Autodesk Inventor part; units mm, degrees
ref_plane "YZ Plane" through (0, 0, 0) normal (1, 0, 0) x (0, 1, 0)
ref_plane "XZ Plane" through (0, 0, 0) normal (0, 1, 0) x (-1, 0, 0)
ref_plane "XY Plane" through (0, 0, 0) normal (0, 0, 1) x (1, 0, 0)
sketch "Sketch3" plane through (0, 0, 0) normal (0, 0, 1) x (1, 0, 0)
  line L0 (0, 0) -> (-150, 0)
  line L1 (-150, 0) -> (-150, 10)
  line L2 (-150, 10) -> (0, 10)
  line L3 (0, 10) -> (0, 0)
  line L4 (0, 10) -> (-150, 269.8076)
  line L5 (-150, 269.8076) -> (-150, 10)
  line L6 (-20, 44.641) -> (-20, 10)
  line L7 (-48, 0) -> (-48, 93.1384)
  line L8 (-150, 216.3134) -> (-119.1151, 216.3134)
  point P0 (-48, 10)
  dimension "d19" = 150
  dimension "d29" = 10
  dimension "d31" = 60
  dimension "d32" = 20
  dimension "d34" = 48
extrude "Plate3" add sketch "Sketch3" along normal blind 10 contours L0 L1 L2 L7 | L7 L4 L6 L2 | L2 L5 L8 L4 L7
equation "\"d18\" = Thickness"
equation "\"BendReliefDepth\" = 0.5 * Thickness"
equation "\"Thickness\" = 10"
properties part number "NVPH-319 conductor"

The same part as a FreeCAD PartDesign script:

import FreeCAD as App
import Part
import Sketcher
Q = App.Units.Quantity


def add_polygon(sketch, points):
    """Adds a closed chain of lines whose ends are joined by coincident constraints."""
    first, n = sketch.GeometryCount, len(points)
    for a, b in zip(points, points[1:] + points[:1]):
        sketch.addGeometry(Part.LineSegment(App.Vector(*a, 0), App.Vector(*b, 0)), False)
    for i in range(n):
        sketch.addConstraint(Sketcher.Constraint("Coincident", first + i, 2, first + (i + 1) % n, 1))

doc = App.newDocument("Part")
body = doc.addObject("PartDesign::Body", "Body")

sketch1 = body.newObject("Sketcher::SketchObject", "Sketch")
sketch1.AttachmentSupport = (doc.getObject("XY_Plane"), [""])
sketch1.MapMode = "FlatFace"
add_polygon(sketch1, [(-150, 0), (-48, 0), (-48, 10), (-20, 10), (-20, 45), (-119, 216), (-150, 216)])
sketch1.addConstraint([
    Sketcher.Constraint("Horizontal", 0),
    Sketcher.Constraint("Vertical", 1),
    Sketcher.Constraint("Horizontal", 2),
    Sketcher.Constraint("Vertical", 3),
    Sketcher.Constraint("Horizontal", 5),
    Sketcher.Constraint("Vertical", 6),
    Sketcher.Constraint("PointOnObject", 0, 2, -1),
    Sketcher.Constraint("DistanceY", 1, 1, 1, 2, Q("10 mm")),
    Sketcher.Constraint("DistanceX", 0, 2, -1, 1, Q("48 mm")),
    Sketcher.Constraint("DistanceX", 2, 2, -1, 1, Q("20 mm")),
    Sketcher.Constraint("DistanceX", 5, 2, -1, 1, Q("150 mm")),
    Sketcher.Constraint("Angle", 4, Q("120 deg")),
    Sketcher.Constraint("DistanceX", 5, 2, 5, 1, Q("30.885 mm")),
    Sketcher.Constraint("DistanceY", 3, 1, 3, 2, Q("34.641 mm")),
])
pad1 = body.newObject("PartDesign::Pad", "Pad")
pad1.Profile = sketch1
pad1.Length = 10

doc.recompute()
